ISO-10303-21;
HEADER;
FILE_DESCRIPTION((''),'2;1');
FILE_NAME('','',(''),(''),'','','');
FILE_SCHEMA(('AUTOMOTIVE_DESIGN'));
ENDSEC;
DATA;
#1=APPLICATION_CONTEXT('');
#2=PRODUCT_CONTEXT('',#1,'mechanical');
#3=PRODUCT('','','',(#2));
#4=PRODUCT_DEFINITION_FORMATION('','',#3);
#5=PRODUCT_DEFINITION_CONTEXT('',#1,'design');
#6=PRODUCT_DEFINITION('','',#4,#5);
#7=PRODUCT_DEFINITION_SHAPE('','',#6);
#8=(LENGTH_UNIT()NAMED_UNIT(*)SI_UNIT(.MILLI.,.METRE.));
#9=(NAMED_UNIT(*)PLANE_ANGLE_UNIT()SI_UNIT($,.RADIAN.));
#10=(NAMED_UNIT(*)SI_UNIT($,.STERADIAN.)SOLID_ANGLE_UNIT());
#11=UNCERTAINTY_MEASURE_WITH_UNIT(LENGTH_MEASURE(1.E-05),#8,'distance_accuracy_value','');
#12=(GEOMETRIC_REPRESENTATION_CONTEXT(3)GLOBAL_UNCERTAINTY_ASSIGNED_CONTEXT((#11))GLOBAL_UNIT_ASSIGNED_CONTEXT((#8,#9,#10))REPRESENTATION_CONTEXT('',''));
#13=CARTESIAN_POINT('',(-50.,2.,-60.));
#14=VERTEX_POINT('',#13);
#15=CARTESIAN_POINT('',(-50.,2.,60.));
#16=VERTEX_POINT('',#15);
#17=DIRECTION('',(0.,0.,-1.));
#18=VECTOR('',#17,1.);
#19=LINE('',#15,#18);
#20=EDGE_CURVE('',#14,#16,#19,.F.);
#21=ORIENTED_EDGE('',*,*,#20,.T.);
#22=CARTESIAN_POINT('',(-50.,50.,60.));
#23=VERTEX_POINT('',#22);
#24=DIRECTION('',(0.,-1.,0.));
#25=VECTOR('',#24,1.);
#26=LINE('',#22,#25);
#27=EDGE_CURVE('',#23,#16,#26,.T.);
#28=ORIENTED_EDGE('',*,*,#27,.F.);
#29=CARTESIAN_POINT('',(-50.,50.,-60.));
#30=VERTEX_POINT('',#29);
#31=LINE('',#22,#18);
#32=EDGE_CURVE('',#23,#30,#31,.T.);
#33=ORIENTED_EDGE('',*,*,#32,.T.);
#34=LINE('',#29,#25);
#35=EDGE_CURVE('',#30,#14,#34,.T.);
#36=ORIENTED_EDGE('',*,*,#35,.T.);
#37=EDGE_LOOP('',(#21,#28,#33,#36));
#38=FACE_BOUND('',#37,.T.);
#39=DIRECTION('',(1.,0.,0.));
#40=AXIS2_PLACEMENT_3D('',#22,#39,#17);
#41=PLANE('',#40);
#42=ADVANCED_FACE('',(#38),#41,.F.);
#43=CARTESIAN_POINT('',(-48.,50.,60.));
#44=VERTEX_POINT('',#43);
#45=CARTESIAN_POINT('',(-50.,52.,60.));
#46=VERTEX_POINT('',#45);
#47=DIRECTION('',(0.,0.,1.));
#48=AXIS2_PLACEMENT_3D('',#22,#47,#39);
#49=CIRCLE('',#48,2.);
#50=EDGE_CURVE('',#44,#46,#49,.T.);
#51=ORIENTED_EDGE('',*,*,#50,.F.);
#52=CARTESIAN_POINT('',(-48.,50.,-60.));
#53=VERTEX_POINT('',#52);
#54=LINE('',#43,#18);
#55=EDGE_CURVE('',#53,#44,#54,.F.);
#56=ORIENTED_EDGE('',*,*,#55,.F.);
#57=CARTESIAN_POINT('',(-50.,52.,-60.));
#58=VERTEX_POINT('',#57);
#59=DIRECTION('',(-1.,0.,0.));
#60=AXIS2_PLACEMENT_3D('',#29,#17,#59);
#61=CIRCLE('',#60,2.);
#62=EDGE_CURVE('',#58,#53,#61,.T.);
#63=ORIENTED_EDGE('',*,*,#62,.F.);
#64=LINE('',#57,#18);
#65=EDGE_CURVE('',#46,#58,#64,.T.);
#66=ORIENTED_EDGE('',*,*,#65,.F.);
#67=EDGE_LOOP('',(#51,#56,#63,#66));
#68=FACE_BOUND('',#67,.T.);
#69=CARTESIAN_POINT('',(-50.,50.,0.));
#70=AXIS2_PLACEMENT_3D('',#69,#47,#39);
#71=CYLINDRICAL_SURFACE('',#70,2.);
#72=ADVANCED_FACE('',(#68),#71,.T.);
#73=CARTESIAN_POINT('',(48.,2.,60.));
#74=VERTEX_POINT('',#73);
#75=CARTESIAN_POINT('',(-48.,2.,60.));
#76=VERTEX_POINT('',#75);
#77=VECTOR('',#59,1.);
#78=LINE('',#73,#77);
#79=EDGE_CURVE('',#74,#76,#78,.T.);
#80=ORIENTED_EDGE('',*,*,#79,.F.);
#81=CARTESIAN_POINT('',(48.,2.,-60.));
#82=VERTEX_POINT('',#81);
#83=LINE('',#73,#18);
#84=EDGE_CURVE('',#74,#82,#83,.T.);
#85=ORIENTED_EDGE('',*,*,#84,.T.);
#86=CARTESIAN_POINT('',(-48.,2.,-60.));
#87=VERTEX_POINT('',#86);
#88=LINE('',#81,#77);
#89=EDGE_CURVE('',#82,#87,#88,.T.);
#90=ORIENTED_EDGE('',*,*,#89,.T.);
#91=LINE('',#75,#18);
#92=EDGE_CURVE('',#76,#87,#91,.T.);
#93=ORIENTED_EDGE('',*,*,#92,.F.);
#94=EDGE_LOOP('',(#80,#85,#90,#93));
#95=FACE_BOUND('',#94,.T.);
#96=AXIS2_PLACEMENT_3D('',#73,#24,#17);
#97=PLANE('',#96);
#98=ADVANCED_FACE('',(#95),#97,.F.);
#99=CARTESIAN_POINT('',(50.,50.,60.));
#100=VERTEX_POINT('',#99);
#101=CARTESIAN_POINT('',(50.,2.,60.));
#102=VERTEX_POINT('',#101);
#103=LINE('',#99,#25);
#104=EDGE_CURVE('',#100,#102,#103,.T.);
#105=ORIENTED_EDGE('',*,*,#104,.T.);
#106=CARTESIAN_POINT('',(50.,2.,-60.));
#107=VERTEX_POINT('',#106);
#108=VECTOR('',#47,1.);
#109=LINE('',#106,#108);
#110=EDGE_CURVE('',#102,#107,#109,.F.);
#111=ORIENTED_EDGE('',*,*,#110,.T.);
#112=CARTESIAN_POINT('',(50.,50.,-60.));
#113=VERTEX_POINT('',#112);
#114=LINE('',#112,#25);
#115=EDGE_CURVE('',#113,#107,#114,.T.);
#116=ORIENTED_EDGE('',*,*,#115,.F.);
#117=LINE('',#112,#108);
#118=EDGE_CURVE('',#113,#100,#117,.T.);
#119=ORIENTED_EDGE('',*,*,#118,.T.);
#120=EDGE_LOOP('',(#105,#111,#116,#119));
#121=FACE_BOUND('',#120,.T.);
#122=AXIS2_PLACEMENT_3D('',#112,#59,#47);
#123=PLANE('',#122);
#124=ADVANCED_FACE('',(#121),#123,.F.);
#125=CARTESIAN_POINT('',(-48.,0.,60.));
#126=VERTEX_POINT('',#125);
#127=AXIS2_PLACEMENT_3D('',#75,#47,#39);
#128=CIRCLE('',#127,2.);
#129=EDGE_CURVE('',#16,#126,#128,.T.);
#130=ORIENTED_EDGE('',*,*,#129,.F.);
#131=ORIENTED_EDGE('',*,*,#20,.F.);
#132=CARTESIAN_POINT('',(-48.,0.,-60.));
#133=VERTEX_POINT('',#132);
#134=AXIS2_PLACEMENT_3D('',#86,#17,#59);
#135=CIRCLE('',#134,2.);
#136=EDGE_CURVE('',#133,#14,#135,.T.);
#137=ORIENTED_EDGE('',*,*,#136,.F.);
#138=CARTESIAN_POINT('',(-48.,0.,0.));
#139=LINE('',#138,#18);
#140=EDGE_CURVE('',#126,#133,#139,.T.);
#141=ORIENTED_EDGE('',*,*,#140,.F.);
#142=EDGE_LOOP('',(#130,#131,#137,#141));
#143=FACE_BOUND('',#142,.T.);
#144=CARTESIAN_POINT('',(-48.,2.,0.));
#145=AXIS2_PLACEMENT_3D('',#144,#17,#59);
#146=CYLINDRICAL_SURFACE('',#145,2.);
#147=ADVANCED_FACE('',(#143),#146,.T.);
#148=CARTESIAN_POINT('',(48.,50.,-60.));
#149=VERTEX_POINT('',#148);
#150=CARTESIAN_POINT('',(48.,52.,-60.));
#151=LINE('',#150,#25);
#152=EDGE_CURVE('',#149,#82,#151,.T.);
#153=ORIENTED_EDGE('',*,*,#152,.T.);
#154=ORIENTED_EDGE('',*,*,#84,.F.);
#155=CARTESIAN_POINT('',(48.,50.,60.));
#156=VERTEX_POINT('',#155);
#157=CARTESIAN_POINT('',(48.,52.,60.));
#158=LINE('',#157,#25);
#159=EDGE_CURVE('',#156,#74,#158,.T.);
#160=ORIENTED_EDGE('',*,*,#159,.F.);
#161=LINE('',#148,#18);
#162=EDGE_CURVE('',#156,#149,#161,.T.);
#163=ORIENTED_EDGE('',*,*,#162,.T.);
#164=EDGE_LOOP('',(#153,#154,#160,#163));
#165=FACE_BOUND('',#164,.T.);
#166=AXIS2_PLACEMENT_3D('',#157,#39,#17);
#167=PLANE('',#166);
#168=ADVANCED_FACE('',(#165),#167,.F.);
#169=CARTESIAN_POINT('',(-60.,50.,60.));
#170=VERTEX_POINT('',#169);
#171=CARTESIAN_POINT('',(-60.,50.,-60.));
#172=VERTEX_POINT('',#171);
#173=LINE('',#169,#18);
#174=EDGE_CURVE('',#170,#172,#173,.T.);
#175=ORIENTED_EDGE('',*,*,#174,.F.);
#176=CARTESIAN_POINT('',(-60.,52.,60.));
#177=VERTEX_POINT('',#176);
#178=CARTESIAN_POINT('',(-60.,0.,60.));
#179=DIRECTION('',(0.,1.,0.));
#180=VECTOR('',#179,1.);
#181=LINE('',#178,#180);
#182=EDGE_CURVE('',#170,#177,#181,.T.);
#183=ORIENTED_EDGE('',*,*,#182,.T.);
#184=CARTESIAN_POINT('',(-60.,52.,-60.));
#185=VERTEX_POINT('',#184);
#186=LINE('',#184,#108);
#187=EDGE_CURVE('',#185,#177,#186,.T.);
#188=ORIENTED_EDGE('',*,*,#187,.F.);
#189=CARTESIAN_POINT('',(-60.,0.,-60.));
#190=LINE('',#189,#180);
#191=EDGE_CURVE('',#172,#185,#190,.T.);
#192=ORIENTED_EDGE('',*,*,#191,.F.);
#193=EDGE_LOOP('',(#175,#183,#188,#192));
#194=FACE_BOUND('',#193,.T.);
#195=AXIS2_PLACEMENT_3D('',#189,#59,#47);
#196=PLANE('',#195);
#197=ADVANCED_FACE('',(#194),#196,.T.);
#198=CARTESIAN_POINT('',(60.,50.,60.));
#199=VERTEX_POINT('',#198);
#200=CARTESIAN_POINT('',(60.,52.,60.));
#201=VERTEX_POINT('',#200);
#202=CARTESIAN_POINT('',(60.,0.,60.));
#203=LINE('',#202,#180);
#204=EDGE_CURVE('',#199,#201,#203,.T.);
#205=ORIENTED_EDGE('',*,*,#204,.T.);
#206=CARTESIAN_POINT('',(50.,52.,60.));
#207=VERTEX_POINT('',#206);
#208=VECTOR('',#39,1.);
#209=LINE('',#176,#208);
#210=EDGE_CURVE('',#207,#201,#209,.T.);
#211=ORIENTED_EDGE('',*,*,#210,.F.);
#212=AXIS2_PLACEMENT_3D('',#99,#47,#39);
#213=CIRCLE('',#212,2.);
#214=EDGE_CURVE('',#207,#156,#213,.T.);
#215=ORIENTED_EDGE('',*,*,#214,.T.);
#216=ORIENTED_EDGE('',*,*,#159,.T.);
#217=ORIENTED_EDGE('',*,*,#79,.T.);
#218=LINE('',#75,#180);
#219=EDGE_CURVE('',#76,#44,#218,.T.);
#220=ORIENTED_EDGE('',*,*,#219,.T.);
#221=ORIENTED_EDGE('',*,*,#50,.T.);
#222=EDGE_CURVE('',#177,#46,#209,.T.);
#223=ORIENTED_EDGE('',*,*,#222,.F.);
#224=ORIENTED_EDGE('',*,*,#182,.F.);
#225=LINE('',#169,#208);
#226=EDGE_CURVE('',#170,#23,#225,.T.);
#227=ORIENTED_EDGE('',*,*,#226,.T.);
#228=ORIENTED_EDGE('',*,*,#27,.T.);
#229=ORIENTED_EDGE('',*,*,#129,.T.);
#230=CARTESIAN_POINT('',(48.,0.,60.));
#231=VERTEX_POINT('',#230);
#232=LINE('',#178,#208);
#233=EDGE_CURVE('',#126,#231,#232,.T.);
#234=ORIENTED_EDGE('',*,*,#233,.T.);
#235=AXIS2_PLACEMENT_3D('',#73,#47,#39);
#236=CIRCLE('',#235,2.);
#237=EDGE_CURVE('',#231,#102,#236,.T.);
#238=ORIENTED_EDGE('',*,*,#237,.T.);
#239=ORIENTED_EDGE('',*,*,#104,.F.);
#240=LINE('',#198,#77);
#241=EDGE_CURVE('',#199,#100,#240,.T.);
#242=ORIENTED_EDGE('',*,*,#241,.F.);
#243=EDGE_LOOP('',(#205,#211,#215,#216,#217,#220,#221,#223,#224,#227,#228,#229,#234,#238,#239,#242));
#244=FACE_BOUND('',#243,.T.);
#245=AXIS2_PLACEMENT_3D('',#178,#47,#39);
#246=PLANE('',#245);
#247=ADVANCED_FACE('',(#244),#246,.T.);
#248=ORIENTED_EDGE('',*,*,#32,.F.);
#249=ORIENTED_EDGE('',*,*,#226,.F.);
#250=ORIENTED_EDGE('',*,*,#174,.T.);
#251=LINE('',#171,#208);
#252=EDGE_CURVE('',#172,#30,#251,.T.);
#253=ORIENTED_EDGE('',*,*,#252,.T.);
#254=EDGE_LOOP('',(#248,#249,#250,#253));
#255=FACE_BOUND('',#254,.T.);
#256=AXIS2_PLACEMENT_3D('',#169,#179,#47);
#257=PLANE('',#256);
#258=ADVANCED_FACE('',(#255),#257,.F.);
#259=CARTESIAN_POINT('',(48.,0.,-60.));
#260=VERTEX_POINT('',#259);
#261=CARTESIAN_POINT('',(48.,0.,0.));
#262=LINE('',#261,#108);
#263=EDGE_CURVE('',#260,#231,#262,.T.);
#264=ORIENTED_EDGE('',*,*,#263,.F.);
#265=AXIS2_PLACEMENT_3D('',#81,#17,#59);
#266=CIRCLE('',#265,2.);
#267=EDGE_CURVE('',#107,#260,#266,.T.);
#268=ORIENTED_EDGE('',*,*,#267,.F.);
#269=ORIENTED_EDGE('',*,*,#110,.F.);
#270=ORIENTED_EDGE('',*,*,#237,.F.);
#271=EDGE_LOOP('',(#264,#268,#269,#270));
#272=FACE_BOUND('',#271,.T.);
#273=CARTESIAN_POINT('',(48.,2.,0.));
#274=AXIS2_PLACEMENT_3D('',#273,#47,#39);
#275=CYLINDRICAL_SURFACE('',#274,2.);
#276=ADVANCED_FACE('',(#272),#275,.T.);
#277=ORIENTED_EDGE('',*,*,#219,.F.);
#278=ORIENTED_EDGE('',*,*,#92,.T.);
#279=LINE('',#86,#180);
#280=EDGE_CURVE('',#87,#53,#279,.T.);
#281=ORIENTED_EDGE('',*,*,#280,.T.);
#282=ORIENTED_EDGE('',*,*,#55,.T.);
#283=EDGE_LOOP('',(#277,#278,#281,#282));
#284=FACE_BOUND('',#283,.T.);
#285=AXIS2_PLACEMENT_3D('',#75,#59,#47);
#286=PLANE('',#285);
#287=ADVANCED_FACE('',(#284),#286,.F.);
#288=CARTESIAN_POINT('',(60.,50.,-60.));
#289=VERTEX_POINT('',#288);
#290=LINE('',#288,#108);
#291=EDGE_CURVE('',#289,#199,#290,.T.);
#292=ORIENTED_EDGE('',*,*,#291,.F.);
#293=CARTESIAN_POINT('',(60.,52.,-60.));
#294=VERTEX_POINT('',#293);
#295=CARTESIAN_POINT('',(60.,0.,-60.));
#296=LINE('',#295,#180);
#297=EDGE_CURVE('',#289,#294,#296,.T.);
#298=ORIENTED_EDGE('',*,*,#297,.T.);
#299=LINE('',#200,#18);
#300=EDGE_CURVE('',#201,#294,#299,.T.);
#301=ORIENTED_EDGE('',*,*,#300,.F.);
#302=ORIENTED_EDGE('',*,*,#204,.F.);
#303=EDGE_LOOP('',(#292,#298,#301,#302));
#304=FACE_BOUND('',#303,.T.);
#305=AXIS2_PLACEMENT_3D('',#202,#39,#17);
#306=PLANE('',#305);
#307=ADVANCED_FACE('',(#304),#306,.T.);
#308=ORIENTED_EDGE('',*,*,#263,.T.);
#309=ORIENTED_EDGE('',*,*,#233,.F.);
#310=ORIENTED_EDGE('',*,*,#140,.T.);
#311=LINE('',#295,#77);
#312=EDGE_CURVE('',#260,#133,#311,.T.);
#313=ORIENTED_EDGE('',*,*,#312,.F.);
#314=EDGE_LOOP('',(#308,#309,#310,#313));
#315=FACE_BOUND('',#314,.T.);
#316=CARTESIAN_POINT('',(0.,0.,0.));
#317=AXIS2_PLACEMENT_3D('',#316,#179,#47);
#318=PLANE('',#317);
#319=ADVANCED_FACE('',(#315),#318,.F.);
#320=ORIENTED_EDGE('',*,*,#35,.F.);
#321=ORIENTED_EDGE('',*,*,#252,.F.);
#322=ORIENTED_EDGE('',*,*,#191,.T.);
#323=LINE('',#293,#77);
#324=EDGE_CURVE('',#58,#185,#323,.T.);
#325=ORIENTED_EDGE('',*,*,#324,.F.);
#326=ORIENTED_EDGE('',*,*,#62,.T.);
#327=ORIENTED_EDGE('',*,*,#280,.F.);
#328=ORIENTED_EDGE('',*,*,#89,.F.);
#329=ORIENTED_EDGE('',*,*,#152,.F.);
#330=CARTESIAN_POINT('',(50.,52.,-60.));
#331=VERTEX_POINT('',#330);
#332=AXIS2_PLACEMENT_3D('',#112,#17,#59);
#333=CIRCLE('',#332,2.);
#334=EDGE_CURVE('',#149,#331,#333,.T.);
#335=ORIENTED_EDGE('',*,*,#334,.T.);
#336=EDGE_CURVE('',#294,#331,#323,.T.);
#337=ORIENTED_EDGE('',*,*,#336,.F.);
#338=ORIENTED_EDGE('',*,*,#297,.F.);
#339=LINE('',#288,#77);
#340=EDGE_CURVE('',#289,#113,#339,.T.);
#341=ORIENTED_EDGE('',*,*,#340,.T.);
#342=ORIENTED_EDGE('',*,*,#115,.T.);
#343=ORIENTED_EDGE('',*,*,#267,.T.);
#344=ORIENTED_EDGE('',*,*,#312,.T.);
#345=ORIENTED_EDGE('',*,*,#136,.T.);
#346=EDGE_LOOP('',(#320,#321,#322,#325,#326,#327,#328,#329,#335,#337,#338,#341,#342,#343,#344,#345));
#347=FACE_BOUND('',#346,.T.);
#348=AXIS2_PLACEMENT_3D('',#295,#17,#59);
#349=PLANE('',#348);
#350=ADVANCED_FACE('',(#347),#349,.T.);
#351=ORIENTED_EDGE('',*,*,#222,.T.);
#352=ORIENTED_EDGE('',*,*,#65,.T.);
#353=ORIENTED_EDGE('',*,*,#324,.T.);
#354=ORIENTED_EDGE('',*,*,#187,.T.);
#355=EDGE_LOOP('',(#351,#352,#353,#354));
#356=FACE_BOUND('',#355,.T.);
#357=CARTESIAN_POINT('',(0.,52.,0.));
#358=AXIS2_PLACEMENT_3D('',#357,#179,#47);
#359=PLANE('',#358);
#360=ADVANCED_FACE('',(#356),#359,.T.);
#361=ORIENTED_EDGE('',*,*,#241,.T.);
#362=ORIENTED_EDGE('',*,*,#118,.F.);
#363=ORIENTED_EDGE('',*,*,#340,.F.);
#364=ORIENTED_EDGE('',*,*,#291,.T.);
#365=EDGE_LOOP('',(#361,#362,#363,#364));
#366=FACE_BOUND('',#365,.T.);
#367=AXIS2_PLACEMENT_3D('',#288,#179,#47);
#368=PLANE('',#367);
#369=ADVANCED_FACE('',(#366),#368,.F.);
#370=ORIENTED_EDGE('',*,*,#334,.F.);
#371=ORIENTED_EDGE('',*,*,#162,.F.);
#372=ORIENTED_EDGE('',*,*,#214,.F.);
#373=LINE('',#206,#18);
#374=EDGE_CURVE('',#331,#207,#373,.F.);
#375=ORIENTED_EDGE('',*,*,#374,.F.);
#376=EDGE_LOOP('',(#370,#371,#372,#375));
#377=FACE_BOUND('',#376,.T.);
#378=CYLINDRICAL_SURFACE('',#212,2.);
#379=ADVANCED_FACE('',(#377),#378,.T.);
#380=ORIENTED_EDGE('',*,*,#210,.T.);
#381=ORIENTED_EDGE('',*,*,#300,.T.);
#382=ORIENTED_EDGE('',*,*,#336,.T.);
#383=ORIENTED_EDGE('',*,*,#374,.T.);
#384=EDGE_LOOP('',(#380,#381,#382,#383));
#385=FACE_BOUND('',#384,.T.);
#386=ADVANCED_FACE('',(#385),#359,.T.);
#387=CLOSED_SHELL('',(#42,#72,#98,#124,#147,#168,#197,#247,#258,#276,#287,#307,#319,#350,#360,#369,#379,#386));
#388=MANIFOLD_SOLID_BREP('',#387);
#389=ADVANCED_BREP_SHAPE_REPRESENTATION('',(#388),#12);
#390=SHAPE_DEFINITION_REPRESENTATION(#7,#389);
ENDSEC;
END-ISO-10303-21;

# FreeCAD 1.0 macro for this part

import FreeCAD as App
import Part
import Sketcher


def edges_at(feature, points):
    """Names of the edges that pass closest to the given points."""
    edges = feature.Shape.Edges
    near = lambda p: min(range(len(edges)), key=lambda i: edges[i].distToShape(Part.Vertex(*p))[0])
    return sorted({f"Edge{near(p) + 1}" for p in points})


def add_polygon(sketch, points):
    """Adds a closed chain of lines whose ends are joined by coincident constraints."""
    first, n = sketch.GeometryCount, len(points)
    for a, b in zip(points, points[1:] + points[:1]):
        sketch.addGeometry(Part.LineSegment(App.Vector(*a, 0), App.Vector(*b, 0)), False)
    for i in range(n):
        sketch.addConstraint(Sketcher.Constraint("Coincident", first + i, 2, first + (i + 1) % n, 1))

doc = App.newDocument("Part")
body = doc.addObject("PartDesign::Body", "Body")

# Sketch on XZ plane
sketch1 = doc.addObject("Sketcher::SketchObject", "Sketch")
body.addObject(sketch1)
sketch1.AttachmentSupport = (doc.XZ_Plane, [""])
sketch1.MapMode = "FlatFace"
sketch1.AttachmentOffset = App.Placement(App.Vector(0, 0, -52), App.Rotation())
add_polygon(sketch1, [(-60, -60), (-60, 60), (60, 60), (60, -60)])  # lines 0-3
sketch1.addConstraint(Sketcher.Constraint("Vertical", 0))
sketch1.addConstraint(Sketcher.Constraint("Horizontal", 1))
sketch1.addConstraint(Sketcher.Constraint("Vertical", 2))
sketch1.addConstraint(Sketcher.Constraint("Horizontal", 3))
sketch1.addConstraint(Sketcher.Constraint("Symmetric", 0, 2, 2, 2, -1, 1))
sketch1.addConstraint(Sketcher.Constraint("Equal", 3, 0))
sketch1.addConstraint(Sketcher.Constraint("DistanceX", 1, 1, 1, 2, 120.0))
pad1 = doc.addObject("PartDesign::Pad", "Pad")
body.addObject(pad1)
pad1.Profile = sketch1
pad1.Length = 52

# Sketch on XY plane
sketch2 = doc.addObject("Sketcher::SketchObject", "Sketch001")
body.addObject(sketch2)
sketch2.AttachmentSupport = (doc.XY_Plane, [""])
sketch2.MapMode = "FlatFace"
sketch2.AttachmentOffset = App.Placement(App.Vector(0, 0, -60), App.Rotation())
add_polygon(sketch2, [(48, 52), (48, 2), (-48, 2), (-48, 52)])  # lines 0-3
sketch2.addConstraint(Sketcher.Constraint("Vertical", 0))
sketch2.addConstraint(Sketcher.Constraint("Horizontal", 1))
sketch2.addConstraint(Sketcher.Constraint("Vertical", 2))
sketch2.addConstraint(Sketcher.Constraint("Horizontal", 3))
sketch2.addConstraint(Sketcher.Constraint("DistanceX", 1, 2, 1, 1, 96.0))
sketch2.addConstraint(Sketcher.Constraint("DistanceY", 0, 2, 0, 1, 50.0))
sketch2.addConstraint(Sketcher.Constraint("DistanceX", -1, 1, 0, 2, 48.0))
sketch2.addConstraint(Sketcher.Constraint("DistanceY", -1, 1, 0, 2, 2.0))
pocket1 = doc.addObject("PartDesign::Pocket", "Pocket")
body.addObject(pocket1)
pocket1.Profile = sketch2
pocket1.Type = "ThroughAll"
pocket1.Reversed = True

# Sketch on XY plane
sketch3 = doc.addObject("Sketcher::SketchObject", "Sketch002")
body.addObject(sketch3)
sketch3.AttachmentSupport = (doc.XY_Plane, [""])
sketch3.MapMode = "FlatFace"
sketch3.AttachmentOffset = App.Placement(App.Vector(0, 0, 60), App.Rotation())
add_polygon(sketch3, [(50, 50), (50, 0), (60, 0), (60, 50)])  # lines 0-3
sketch3.addConstraint(Sketcher.Constraint("Vertical", 0))
sketch3.addConstraint(Sketcher.Constraint("Horizontal", 1))
sketch3.addConstraint(Sketcher.Constraint("Vertical", 2))
sketch3.addConstraint(Sketcher.Constraint("Horizontal", 3))
sketch3.addConstraint(Sketcher.Constraint("PointOnObject", 0, 2, -1))
sketch3.addConstraint(Sketcher.Constraint("DistanceX", 1, 1, 1, 2, 10.0))
sketch3.addConstraint(Sketcher.Constraint("DistanceY", 0, 2, 0, 1, 50.0))
sketch3.addConstraint(Sketcher.Constraint("DistanceX", -1, 1, 0, 2, 50.0))
pocket2 = doc.addObject("PartDesign::Pocket", "Pocket001")
body.addObject(pocket2)
pocket2.Profile = sketch3
pocket2.Type = "ThroughAll"

# Sketch on XY plane
sketch4 = doc.addObject("Sketcher::SketchObject", "Sketch003")
body.addObject(sketch4)
sketch4.AttachmentSupport = (doc.XY_Plane, [""])
sketch4.MapMode = "FlatFace"
sketch4.AttachmentOffset = App.Placement(App.Vector(0, 0, -60), App.Rotation())
add_polygon(sketch4, [(-50, 50), (-50, 0), (-60, 0), (-60, 50)])  # lines 0-3
sketch4.addConstraint(Sketcher.Constraint("Vertical", 0))
sketch4.addConstraint(Sketcher.Constraint("Horizontal", 1))
sketch4.addConstraint(Sketcher.Constraint("Vertical", 2))
sketch4.addConstraint(Sketcher.Constraint("Horizontal", 3))
sketch4.addConstraint(Sketcher.Constraint("PointOnObject", 0, 2, -1))
sketch4.addConstraint(Sketcher.Constraint("DistanceX", 1, 2, 1, 1, 10.0))
sketch4.addConstraint(Sketcher.Constraint("DistanceY", 0, 2, 0, 1, 50.0))
sketch4.addConstraint(Sketcher.Constraint("DistanceX", 0, 2, -1, 1, 50.0))
pocket3 = doc.addObject("PartDesign::Pocket", "Pocket002")
body.addObject(pocket3)
pocket3.Profile = sketch4
pocket3.Type = "ThroughAll"
pocket3.Reversed = True
doc.recompute()

fillet = doc.addObject("PartDesign::Fillet", "Fillet")
body.addObject(fillet)
fillet.Base = (pocket3, edges_at(pocket3, [
    (48, 52, 0),
    (-48, 52, 0),
    (50, 0, 0),
    (-50, 0, 0),
]))
fillet.Radius = 2

doc.recompute()
